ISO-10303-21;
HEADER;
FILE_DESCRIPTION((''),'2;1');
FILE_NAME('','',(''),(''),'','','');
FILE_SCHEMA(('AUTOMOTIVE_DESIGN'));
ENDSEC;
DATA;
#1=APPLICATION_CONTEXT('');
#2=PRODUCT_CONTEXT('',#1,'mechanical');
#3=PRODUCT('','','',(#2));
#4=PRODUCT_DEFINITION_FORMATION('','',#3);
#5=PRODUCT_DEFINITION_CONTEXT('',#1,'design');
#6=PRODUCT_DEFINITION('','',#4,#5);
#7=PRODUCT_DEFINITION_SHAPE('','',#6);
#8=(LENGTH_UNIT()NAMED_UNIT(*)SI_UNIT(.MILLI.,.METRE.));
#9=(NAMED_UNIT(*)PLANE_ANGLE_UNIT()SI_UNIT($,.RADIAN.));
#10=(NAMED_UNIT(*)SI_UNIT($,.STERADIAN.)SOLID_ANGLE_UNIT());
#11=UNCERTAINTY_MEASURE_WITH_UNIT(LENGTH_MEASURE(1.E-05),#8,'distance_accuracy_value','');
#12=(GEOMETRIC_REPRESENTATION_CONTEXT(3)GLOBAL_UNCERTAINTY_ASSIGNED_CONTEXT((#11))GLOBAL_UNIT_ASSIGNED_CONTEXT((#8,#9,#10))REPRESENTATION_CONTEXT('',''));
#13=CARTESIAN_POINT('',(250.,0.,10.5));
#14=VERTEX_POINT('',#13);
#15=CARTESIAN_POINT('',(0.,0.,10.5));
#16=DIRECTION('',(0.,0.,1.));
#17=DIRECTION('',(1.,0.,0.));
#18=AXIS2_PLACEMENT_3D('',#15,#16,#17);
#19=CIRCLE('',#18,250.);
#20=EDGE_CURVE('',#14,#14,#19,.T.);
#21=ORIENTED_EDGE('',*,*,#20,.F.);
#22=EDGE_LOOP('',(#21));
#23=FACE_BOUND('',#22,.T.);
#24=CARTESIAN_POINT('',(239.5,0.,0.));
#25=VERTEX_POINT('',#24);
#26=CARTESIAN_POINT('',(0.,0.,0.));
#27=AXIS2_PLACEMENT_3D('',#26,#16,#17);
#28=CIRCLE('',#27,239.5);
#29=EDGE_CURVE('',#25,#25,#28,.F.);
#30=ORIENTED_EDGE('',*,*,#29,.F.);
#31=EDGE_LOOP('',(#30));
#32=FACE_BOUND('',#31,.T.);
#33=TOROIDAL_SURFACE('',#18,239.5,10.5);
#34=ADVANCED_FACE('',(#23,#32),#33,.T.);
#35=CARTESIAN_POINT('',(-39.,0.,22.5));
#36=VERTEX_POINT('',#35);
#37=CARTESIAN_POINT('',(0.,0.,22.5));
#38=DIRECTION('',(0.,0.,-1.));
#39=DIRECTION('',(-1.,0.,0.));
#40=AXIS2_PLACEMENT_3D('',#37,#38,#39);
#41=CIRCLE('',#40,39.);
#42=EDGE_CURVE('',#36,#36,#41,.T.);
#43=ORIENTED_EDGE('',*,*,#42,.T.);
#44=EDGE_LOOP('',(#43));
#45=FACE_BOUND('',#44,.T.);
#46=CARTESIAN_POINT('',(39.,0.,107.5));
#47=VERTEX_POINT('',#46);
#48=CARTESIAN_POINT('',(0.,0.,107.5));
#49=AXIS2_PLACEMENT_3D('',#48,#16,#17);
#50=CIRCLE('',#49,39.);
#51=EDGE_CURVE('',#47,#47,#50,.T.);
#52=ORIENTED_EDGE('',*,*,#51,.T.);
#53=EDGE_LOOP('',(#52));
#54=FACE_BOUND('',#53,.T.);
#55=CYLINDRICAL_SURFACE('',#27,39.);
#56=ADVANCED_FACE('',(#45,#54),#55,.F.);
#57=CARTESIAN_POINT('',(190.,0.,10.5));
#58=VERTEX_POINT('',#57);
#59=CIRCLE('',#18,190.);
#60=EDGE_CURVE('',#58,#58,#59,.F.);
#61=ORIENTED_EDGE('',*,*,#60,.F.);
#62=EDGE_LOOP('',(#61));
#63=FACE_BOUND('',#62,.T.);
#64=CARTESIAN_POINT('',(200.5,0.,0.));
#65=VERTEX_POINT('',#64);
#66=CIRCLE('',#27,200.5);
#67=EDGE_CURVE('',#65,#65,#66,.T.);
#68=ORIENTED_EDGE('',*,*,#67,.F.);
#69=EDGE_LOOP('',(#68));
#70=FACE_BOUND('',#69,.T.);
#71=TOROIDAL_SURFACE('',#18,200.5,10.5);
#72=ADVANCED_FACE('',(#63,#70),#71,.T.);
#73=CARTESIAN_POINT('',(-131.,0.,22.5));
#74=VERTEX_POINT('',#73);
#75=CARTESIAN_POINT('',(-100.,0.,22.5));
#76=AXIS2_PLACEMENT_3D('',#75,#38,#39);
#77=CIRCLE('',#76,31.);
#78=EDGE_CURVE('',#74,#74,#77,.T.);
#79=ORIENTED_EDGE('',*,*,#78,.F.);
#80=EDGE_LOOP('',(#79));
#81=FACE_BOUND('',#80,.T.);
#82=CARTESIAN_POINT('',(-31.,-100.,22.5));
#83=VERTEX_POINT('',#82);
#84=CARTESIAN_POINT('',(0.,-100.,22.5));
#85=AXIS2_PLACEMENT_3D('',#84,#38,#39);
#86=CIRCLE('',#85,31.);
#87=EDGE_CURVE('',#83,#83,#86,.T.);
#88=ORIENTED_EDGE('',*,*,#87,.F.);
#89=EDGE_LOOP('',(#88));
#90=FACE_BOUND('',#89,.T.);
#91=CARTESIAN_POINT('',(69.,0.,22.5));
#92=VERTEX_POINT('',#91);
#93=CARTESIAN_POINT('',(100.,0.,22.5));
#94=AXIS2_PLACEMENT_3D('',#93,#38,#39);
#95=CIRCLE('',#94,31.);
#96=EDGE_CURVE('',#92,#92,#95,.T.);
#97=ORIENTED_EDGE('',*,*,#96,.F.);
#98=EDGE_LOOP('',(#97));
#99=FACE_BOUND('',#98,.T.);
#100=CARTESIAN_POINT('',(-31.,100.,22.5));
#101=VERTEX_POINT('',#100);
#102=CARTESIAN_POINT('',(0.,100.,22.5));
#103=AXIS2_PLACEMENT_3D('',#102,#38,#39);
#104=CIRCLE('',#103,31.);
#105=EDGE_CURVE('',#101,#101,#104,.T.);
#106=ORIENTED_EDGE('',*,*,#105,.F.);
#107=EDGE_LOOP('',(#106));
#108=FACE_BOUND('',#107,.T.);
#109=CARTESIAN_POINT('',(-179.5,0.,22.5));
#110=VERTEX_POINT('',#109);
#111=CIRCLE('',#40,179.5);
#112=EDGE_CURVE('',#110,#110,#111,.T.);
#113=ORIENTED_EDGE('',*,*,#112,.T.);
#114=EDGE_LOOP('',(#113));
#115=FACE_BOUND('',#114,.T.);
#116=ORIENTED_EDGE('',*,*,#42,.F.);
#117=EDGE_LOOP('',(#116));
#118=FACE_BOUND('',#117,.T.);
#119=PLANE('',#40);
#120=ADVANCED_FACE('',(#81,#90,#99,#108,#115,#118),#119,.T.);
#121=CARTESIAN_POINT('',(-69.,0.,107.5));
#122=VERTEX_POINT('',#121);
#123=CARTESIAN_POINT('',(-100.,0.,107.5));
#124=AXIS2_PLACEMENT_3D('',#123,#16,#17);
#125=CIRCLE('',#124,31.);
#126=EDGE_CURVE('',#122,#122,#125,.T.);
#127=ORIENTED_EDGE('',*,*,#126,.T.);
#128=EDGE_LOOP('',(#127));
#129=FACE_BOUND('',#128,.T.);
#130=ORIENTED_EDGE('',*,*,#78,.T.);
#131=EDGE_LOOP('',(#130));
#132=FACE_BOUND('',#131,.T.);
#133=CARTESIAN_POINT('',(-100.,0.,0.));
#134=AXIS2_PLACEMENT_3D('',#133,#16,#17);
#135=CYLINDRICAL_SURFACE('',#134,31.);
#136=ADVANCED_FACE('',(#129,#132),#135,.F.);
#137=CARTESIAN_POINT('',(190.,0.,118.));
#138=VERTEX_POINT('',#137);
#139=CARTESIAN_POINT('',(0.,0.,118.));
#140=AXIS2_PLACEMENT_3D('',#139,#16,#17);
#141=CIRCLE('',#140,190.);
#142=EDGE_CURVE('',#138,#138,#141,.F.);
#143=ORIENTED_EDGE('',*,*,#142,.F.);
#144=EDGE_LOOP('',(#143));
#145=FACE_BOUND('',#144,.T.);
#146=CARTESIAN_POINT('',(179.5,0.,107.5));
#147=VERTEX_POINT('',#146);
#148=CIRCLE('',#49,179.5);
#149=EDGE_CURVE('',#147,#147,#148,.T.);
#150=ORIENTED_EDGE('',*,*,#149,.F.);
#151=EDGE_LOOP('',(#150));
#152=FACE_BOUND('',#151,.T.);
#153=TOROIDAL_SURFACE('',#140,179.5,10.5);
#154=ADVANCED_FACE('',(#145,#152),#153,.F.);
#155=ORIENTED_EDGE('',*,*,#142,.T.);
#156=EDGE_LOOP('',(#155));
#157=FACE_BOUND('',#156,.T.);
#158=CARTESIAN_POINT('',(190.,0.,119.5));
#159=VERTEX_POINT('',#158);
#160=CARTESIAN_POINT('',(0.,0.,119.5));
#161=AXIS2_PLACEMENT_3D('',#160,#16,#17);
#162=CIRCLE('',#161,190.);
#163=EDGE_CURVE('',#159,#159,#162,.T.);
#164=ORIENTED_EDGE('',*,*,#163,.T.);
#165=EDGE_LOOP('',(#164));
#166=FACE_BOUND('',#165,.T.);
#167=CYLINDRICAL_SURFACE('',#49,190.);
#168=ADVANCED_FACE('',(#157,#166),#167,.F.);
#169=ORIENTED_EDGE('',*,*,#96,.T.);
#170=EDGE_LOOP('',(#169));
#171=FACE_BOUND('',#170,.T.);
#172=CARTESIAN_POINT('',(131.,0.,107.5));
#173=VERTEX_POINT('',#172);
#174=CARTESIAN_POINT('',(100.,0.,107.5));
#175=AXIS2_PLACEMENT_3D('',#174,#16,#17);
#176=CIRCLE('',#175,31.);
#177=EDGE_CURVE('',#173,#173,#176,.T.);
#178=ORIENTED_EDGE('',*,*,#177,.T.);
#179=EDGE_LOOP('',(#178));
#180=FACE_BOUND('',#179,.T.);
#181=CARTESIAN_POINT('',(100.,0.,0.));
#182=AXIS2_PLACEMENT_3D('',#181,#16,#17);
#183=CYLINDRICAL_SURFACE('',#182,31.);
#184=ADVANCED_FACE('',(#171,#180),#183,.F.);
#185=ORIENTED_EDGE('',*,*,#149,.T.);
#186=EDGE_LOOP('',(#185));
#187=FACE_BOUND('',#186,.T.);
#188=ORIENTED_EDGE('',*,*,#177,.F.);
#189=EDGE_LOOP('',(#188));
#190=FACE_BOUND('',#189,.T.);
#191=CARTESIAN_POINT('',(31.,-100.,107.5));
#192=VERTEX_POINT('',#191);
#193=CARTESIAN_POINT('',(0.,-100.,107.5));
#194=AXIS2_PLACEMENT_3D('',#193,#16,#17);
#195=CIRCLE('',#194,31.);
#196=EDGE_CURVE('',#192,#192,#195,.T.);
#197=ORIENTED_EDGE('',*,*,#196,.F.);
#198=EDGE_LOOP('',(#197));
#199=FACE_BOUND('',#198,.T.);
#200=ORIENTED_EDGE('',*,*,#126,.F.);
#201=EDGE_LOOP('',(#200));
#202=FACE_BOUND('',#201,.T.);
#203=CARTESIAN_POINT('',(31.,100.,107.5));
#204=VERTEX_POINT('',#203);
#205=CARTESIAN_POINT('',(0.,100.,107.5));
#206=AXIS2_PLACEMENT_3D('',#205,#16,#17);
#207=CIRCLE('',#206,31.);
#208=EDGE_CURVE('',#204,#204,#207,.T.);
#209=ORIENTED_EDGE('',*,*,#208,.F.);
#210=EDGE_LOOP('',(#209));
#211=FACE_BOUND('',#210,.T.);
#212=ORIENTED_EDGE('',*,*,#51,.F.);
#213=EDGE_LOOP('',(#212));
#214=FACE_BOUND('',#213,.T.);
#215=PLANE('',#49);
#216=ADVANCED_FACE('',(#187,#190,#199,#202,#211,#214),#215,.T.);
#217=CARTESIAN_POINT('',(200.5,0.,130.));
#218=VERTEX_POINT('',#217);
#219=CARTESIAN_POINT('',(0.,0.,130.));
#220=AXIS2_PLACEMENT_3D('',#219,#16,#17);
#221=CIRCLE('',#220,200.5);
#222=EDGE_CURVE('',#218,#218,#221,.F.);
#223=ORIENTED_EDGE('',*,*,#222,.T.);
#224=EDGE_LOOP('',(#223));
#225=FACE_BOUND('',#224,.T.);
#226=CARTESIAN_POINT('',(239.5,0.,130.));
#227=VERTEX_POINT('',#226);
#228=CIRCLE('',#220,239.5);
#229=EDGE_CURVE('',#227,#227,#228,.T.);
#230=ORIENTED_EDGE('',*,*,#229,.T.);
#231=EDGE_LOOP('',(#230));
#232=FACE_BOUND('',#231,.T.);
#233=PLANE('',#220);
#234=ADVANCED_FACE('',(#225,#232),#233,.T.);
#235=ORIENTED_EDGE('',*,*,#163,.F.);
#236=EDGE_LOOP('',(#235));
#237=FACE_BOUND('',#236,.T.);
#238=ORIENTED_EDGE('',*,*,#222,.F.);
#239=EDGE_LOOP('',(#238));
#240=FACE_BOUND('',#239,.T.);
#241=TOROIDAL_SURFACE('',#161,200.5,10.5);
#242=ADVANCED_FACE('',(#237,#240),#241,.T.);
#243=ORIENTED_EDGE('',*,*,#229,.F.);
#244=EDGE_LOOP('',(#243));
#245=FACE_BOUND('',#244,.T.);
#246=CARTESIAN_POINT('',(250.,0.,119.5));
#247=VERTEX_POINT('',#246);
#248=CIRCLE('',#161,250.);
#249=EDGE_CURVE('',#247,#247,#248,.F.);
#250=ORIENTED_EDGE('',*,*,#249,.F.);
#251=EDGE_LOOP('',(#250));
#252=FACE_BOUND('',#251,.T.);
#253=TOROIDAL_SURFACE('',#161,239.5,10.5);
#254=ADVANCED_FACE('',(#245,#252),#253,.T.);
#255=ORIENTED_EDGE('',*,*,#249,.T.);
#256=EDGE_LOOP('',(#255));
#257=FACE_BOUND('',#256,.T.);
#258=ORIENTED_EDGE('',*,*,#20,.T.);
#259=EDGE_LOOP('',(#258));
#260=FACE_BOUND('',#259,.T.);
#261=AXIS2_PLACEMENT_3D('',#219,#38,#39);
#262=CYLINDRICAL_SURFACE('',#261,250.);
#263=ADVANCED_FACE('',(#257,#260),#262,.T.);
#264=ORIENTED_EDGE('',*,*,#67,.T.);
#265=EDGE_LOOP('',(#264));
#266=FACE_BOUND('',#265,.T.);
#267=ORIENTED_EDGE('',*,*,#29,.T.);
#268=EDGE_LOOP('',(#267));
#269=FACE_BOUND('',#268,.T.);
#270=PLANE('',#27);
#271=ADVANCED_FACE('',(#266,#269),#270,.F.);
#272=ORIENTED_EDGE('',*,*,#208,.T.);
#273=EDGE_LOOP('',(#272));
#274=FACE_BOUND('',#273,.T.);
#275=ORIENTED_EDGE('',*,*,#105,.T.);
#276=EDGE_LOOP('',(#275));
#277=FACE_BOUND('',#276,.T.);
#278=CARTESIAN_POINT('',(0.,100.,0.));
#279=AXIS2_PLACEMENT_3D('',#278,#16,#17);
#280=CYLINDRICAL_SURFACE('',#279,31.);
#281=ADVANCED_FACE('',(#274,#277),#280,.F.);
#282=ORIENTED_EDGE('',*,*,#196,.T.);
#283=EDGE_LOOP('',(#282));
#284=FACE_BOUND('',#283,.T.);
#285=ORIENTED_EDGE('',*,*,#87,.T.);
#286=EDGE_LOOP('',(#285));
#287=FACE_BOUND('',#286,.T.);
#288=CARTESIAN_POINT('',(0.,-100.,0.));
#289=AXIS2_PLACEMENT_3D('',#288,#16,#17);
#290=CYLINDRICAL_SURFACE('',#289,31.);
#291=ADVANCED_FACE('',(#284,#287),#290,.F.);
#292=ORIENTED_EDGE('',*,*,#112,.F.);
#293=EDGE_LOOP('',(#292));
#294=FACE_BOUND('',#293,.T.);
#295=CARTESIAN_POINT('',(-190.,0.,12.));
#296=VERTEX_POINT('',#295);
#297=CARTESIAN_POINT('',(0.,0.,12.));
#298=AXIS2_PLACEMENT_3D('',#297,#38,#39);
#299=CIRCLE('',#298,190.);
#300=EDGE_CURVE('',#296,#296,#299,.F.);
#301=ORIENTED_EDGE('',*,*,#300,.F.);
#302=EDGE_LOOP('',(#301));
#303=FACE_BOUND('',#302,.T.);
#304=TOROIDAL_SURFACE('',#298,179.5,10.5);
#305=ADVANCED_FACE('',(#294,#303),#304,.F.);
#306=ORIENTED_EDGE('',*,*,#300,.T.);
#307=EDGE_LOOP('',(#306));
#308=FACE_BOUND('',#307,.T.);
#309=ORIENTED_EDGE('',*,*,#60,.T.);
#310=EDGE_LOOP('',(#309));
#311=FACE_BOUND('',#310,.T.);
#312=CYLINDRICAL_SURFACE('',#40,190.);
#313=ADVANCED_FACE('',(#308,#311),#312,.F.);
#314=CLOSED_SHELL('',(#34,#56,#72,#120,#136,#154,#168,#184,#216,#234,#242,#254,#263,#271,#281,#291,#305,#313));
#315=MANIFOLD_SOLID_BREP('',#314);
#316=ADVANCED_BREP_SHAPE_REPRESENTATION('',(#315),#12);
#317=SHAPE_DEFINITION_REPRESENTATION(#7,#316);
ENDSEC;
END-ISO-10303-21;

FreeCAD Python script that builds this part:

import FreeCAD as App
import Part
import Sketcher
from FreeCAD import Vector
Q = App.Units.Quantity


def edges_at(feature, points):
    """Names of the edges that pass closest to the given points."""
    edges = feature.Shape.Edges
    near = lambda p: min(range(len(edges)), key=lambda i: edges[i].distToShape(Part.Vertex(*p))[0])
    return sorted({f"Edge{near(p) + 1}" for p in points})

doc = App.newDocument("Part")
body = doc.addObject("PartDesign::Body", "Body")

sketch1 = doc.addObject("Sketcher::SketchObject", "Sketch")
body.addObject(sketch1)
sketch1.AttachmentSupport = (doc.XY_Plane, [""])
sketch1.MapMode = "FlatFace"
sketch1.addGeometry(Part.Circle(Vector(0, 0, 0), Vector(0, 0, 1), 250), False)
sketch1.addConstraint([
    Sketcher.Constraint("Coincident", 0, 3, -1, 1),
    Sketcher.Constraint("Diameter", 0, Q("500 mm")),
])
pad1 = doc.addObject("PartDesign::Pad", "Pad")
body.addObject(pad1)
pad1.Profile = sketch1
pad1.Length = 130

sketch2 = doc.addObject("Sketcher::SketchObject", "Sketch001")
body.addObject(sketch2)
sketch2.AttachmentSupport = (doc.XY_Plane, [""])
sketch2.MapMode = "FlatFace"
sketch2.AttachmentOffset = App.Placement(Vector(0, 0, 130), App.Rotation())
sketch2.addGeometry(Part.Circle(Vector(0, 0, 0), Vector(0, 0, 1), 190), False)
sketch2.addConstraint([
    Sketcher.Constraint("Coincident", 0, 3, -1, 1),
    Sketcher.Constraint("Diameter", 0, Q("380 mm")),
])
pocket1 = doc.addObject("PartDesign::Pocket", "Pocket")
body.addObject(pocket1)
pocket1.Profile = sketch2
pocket1.Length = 45
pocket1.Midplane = True
doc.recompute()

fillet = doc.addObject("PartDesign::Fillet", "Fillet")
body.addObject(fillet)
fillet.Base = (pocket1, edges_at(pocket1, [(-190, 0, 130), (-190, 0, 107.5)]))
fillet.Radius = 10.5
doc.recompute()

fillet2 = doc.addObject("PartDesign::Fillet", "Fillet001")
body.addObject(fillet2)
fillet2.Base = (fillet, edges_at(fillet, [(-250, 0, 130)]))
fillet2.Radius = 10.5

sketch3 = doc.addObject("Sketcher::SketchObject", "Sketch002")
body.addObject(sketch3)
sketch3.AttachmentSupport = (doc.XY_Plane, [""])
sketch3.MapMode = "FlatFace"
sketch3.addGeometry(Part.Circle(Vector(0, 0, 0), Vector(0, 0, 1), 190), False)
sketch3.addConstraint([
    Sketcher.Constraint("Coincident", 0, 3, -1, 1),
    Sketcher.Constraint("Diameter", 0, Q("380 mm")),
])
pocket2 = doc.addObject("PartDesign::Pocket", "Pocket001")
body.addObject(pocket2)
pocket2.Profile = sketch3
pocket2.Length = 45
pocket2.Midplane = True
doc.recompute()

fillet3 = doc.addObject("PartDesign::Fillet", "Fillet002")
body.addObject(fillet3)
fillet3.Base = (pocket2, edges_at(pocket2, [(-250, 0, 0), (190, 0, 22.5), (190, 0, 0)]))
fillet3.Radius = 10.5

sketch4 = doc.addObject("Sketcher::SketchObject", "Sketch003")
body.addObject(sketch4)
sketch4.AttachmentSupport = (doc.XY_Plane, [""])
sketch4.MapMode = "FlatFace"
sketch4.AttachmentOffset = App.Placement(Vector(0, 0, 107.5), App.Rotation())
sketch4.addGeometry([
    Part.Circle(Vector(0, 100, 0), Vector(0, 0, 1), 31),
    Part.Circle(Vector(100, 0, 0), Vector(0, 0, 1), 31),
    Part.Circle(Vector(0, -100, 0), Vector(0, 0, 1), 31),
    Part.Circle(Vector(-100, 0, 0), Vector(0, 0, 1), 31),
], False)
sketch4.addConstraint([
    Sketcher.Constraint("Equal", 0, 1),
    Sketcher.Constraint("Equal", 1, 2),
    Sketcher.Constraint("Equal", 2, 3),
    Sketcher.Constraint("Symmetric", 0, 3, 2, 3, -1, 1),
    Sketcher.Constraint("Symmetric", 1, 3, 3, 3, -1, 1),
    Sketcher.Constraint("PointOnObject", 0, 3, -2),
    Sketcher.Constraint("PointOnObject", 1, 3, -1),
    Sketcher.Constraint("Diameter", 0, Q("62 mm")),
    Sketcher.Constraint("DistanceY", -1, 1, 0, 3, Q("100 mm")),
    Sketcher.Constraint("DistanceX", -1, 1, 1, 3, Q("100 mm")),
])
pocket3 = doc.addObject("PartDesign::Pocket", "Pocket002")
body.addObject(pocket3)
pocket3.Profile = sketch4
pocket3.Type = "ThroughAll"

sketch5 = doc.addObject("Sketcher::SketchObject", "Sketch004")
body.addObject(sketch5)
sketch5.AttachmentSupport = (doc.XY_Plane, [""])
sketch5.MapMode = "FlatFace"
sketch5.AttachmentOffset = App.Placement(Vector(0, 0, 107.5), App.Rotation())
sketch5.addGeometry(Part.Circle(Vector(0, 0, 0), Vector(0, 0, 1), 39), False)
sketch5.addConstraint([
    Sketcher.Constraint("Coincident", 0, 3, -1, 1),
    Sketcher.Constraint("Diameter", 0, Q("78 mm")),
])
pocket4 = doc.addObject("PartDesign::Pocket", "Pocket003")
body.addObject(pocket4)
pocket4.Profile = sketch5
pocket4.Type = "ThroughAll"

doc.recompute()
